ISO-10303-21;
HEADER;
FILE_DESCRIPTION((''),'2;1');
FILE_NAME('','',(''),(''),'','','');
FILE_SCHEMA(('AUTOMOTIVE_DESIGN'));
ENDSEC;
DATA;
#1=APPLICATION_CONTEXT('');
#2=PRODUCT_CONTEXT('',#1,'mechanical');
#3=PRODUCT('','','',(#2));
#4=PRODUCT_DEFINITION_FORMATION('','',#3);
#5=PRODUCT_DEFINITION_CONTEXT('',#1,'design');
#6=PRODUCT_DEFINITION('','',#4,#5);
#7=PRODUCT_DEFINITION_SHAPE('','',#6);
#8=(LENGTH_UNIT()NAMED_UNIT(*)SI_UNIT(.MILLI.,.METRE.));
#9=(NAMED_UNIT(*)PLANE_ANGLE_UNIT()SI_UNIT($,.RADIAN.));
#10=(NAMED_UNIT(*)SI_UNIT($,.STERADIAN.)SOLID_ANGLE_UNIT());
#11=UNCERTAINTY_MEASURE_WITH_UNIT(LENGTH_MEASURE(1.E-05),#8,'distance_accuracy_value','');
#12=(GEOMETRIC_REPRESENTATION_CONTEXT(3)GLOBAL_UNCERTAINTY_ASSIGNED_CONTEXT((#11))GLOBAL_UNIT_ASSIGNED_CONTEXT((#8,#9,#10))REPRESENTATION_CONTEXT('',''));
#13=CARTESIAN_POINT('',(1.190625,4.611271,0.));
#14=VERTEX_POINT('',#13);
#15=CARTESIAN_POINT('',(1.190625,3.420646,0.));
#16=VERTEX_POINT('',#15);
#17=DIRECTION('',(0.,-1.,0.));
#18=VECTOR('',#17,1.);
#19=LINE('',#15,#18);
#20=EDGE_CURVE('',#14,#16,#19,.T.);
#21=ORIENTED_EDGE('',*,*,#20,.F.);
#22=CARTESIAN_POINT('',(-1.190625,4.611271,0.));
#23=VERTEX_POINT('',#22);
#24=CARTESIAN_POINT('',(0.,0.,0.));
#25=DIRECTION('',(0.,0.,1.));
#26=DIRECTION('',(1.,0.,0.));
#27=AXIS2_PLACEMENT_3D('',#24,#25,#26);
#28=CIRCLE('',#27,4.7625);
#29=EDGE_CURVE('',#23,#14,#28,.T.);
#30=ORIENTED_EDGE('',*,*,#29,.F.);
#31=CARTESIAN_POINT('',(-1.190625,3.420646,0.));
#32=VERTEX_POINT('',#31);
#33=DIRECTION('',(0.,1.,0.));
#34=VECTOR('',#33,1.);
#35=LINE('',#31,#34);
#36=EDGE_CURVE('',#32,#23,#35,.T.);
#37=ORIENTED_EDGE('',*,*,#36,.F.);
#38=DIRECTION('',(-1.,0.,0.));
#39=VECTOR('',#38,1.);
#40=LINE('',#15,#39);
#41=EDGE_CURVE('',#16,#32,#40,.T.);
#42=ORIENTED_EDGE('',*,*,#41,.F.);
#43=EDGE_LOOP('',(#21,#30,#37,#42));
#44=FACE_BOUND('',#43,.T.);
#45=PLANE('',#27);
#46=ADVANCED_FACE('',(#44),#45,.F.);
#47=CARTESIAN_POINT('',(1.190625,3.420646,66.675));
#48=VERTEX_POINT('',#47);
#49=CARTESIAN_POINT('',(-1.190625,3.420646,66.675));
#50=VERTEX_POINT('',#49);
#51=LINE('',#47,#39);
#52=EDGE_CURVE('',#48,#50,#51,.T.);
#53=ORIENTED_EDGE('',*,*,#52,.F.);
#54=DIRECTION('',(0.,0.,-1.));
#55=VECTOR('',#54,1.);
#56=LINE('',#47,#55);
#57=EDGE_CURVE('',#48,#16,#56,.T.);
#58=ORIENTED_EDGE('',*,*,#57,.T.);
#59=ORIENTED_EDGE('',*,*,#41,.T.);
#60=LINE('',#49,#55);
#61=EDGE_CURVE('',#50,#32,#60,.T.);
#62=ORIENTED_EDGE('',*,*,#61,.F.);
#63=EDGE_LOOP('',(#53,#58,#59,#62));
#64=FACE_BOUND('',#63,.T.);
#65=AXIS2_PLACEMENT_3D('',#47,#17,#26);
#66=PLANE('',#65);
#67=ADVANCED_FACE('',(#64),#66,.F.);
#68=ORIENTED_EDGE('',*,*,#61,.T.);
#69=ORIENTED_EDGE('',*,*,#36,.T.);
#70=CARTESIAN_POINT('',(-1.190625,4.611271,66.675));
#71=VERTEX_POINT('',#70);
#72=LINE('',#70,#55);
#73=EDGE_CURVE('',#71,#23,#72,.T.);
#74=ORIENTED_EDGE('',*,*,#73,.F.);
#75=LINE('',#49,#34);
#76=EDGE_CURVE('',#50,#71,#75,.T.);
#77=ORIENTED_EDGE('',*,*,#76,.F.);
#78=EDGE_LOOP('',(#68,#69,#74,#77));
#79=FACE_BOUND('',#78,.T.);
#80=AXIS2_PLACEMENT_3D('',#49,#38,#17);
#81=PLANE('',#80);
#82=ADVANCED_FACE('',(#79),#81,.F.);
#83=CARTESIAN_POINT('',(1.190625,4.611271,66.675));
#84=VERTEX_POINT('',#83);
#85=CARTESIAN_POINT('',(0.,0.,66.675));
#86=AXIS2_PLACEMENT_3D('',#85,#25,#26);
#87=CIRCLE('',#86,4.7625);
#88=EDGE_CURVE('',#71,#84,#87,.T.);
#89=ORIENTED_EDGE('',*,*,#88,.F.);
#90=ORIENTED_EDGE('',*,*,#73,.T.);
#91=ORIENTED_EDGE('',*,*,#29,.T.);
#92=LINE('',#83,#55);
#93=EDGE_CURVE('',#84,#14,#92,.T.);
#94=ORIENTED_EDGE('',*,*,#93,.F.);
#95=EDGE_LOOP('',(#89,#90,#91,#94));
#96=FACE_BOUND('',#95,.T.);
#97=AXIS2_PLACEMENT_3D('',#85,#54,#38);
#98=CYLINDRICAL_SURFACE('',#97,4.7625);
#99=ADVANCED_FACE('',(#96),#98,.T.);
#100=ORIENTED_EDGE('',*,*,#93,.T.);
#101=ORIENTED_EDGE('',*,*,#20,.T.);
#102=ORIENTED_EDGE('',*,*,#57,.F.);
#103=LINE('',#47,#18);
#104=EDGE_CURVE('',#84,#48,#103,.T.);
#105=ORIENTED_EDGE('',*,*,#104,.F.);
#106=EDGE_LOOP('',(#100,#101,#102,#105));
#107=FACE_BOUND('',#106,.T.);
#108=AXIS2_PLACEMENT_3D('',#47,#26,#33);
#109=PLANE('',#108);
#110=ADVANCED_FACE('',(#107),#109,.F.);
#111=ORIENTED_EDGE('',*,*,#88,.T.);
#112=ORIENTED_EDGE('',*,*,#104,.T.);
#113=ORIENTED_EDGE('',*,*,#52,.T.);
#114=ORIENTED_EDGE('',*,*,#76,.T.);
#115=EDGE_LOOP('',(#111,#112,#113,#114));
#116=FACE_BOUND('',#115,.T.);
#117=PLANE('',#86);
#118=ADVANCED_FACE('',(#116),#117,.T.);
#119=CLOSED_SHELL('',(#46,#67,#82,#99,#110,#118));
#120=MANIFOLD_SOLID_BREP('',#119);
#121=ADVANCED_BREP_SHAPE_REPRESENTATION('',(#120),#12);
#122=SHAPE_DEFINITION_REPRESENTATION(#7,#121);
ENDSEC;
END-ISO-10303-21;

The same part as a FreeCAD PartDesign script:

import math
import FreeCAD as App
import Part
import Sketcher

V = App.Vector
Q = App.Units.Quantity

doc = App.newDocument("Part")
body = doc.addObject("PartDesign::Body", "Body")

sketch1 = doc.addObject("Sketcher::SketchObject", "Sketch")
body.addObject(sketch1)
sketch1.AttachmentSupport = (doc.XY_Plane, [""])
sketch1.MapMode = "FlatFace"
sketch1.addGeometry(Part.LineSegment(V(1.2, 3.4, 0), V(-1.2, 3.4, 0)), False)
sketch1.addGeometry(Part.LineSegment(V(-1.2, 3.4, 0), V(-1.2, 4.6, 0)), False)
sketch1.addGeometry(Part.ArcOfCircle(Part.Circle(V(0, 0, 0), V(0, 0, 1), 4.8), math.radians(104), math.radians(436)), False)
sketch1.addGeometry(Part.LineSegment(V(1.2, 4.6, 0), V(1.2, 3.4, 0)), False)
sketch1.addConstraint(Sketcher.Constraint("Coincident", 0, 2, 1, 1))
sketch1.addConstraint(Sketcher.Constraint("Coincident", 1, 2, 2, 1))
sketch1.addConstraint(Sketcher.Constraint("Coincident", 2, 2, 3, 1))
sketch1.addConstraint(Sketcher.Constraint("Coincident", 3, 2, 0, 1))
sketch1.addConstraint(Sketcher.Constraint("Horizontal", 0))
sketch1.addConstraint(Sketcher.Constraint("Vertical", 1))
sketch1.addConstraint(Sketcher.Constraint("Vertical", 3))
sketch1.addConstraint(Sketcher.Constraint("Coincident", 2, 3, -1, 1))
sketch1.addConstraint(Sketcher.Constraint("Horizontal", 1, 2, 2, 2))
sketch1.addConstraint(Sketcher.Constraint("Radius", 2, Q("0.1875 in")))
sketch1.addConstraint(Sketcher.Constraint("DistanceX", 0, 2, 0, 1, Q("0.09375 in")))
sketch1.addConstraint(Sketcher.Constraint("DistanceY", 1, 1, 1, 2, Q("0.046875 in")))
pad1 = doc.addObject("PartDesign::Pad", "Pad")
body.addObject(pad1)
pad1.Profile = sketch1
pad1.Length = Q("2.625 in")

doc.recompute()
